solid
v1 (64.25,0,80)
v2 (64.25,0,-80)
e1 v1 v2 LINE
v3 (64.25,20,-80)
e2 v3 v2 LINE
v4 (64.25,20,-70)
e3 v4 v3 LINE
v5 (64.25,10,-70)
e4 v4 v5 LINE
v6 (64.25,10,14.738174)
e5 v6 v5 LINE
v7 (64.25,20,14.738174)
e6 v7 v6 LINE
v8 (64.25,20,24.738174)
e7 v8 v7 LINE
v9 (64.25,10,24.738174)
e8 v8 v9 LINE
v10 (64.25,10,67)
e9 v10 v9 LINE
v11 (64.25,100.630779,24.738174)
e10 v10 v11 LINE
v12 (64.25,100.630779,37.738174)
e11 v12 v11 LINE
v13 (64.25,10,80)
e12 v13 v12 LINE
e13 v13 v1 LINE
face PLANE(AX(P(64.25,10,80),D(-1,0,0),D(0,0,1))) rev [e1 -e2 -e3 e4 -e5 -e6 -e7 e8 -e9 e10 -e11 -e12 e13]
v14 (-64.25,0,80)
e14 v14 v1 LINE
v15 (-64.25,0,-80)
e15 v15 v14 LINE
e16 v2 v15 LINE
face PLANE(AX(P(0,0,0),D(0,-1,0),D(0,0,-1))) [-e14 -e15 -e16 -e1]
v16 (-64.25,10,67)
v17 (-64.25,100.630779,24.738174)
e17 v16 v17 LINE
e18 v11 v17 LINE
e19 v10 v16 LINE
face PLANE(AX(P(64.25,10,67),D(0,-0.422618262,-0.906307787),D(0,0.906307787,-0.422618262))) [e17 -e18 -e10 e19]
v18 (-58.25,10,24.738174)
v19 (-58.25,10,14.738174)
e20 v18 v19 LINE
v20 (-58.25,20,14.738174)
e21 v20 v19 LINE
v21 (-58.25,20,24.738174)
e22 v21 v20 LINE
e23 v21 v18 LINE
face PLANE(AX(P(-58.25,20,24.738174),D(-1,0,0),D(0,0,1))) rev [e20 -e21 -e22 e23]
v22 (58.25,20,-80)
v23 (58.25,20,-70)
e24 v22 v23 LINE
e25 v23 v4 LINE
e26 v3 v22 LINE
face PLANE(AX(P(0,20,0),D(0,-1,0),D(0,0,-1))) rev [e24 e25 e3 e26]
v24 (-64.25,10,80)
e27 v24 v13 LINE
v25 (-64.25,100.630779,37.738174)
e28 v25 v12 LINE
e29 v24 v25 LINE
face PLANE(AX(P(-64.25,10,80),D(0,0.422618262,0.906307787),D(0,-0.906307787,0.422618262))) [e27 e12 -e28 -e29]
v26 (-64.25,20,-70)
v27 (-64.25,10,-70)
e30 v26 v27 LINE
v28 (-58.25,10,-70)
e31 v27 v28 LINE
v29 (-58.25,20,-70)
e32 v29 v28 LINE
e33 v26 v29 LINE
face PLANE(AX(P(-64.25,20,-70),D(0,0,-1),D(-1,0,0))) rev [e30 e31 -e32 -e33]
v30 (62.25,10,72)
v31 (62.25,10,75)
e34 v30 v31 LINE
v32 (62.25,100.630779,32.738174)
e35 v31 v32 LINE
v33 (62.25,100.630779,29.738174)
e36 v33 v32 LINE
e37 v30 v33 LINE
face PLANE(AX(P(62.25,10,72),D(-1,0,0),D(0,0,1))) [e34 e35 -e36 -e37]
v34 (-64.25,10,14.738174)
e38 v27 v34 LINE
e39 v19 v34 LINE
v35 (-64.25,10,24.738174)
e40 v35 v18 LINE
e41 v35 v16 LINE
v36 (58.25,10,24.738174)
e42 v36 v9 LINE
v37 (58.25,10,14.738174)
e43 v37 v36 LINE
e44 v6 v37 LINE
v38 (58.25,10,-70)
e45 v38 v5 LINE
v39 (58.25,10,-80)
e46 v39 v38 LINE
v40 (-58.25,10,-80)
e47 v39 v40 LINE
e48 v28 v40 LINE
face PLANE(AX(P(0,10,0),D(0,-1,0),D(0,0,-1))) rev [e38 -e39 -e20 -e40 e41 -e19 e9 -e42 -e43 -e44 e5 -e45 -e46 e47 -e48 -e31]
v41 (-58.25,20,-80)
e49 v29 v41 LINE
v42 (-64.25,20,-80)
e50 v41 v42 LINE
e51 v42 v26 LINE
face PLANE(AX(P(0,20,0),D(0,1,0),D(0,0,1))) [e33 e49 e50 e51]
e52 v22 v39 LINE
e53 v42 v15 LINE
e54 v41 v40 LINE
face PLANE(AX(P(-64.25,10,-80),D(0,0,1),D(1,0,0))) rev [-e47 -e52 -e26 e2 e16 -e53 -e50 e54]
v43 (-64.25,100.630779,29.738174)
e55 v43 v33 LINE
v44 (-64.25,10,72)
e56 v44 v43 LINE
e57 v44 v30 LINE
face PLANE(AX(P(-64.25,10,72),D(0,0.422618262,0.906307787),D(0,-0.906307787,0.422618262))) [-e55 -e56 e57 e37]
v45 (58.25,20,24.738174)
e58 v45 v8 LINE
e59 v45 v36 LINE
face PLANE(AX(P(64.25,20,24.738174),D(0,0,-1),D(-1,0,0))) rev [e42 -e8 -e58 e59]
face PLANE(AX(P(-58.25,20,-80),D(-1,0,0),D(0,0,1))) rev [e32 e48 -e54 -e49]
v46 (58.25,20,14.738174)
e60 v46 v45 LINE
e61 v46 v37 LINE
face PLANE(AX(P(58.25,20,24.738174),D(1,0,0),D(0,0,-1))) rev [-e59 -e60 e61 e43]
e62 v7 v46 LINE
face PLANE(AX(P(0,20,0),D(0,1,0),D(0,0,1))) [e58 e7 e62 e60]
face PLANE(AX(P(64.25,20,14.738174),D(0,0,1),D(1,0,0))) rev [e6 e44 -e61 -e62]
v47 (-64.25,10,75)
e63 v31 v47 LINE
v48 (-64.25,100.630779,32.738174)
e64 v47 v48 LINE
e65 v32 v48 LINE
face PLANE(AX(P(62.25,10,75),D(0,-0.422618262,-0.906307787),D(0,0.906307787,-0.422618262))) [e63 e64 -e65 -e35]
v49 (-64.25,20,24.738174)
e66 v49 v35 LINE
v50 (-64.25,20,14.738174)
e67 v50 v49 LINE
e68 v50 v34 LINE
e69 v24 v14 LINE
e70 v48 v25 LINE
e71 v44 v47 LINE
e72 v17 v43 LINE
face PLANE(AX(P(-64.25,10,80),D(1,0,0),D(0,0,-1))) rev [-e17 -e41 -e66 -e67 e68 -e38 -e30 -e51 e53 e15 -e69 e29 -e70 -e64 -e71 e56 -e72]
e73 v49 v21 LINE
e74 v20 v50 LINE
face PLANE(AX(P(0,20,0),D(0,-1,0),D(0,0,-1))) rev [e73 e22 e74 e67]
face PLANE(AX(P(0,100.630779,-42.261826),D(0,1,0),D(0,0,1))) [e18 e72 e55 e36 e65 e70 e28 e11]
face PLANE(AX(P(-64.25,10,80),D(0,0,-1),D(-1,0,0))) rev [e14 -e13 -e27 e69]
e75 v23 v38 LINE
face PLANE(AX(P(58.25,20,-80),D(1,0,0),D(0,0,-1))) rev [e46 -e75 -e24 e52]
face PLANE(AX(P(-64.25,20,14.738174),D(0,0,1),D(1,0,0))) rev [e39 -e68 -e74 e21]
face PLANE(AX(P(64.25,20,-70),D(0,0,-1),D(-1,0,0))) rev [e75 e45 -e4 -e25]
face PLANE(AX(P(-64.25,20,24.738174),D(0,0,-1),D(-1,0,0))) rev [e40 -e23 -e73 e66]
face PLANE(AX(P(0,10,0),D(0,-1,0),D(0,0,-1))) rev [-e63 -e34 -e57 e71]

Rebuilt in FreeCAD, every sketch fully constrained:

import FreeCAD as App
import Part
import Sketcher
from FreeCAD import Vector

doc = App.newDocument("Part")
params = doc.addObject("Spreadsheet::Sheet", "Params")
for row, (alias, value) in enumerate([
    ("sketch1_height", "160 mm"),
    ("sketch1_width", "128.5 mm"),
    ("pad1_length", "10 mm"),
    ("sketch2_height", "13 mm"),
    ("sketch2_height2", "5 mm"),
    ("sketch2_width", "128.5 mm"),
    ("sketch2_width2", "126.5 mm"),
    ("sketch3_width", "100 mm"),
    ("sketch4_width", "6 mm"),
    ("sketch4_height", "10 mm"),
    ("pad2_length", "10 mm"),
], start=1):
    params.set(f"A{row}", alias)
    params.set(f"B{row}", "=" + value)
    params.setAlias(f"B{row}", alias)

body = doc.addObject("PartDesign::Body", "Body")

# Sketch on XZ plane
sketch1 = body.newObject("Sketcher::SketchObject", "Sketch")
sketch1.AttachmentSupport = (doc.getObject("XZ_Plane"), [""])
sketch1.MapMode = "FlatFace"
sketch1.addGeometry(Part.LineSegment(Vector(-64, -80, 0), Vector(-64, 80, 0)), False)
sketch1.addGeometry(Part.LineSegment(Vector(-64, 80, 0), Vector(64, 80, 0)), False)
sketch1.addGeometry(Part.LineSegment(Vector(64, 80, 0), Vector(64, -80, 0)), False)
sketch1.addGeometry(Part.LineSegment(Vector(64, -80, 0), Vector(-64, -80, 0)), False)
sketch1.addConstraint(Sketcher.Constraint("Coincident", 0, 2, 1, 1))
sketch1.addConstraint(Sketcher.Constraint("Coincident", 1, 2, 2, 1))
sketch1.addConstraint(Sketcher.Constraint("Coincident", 2, 2, 3, 1))
sketch1.addConstraint(Sketcher.Constraint("Coincident", 3, 2, 0, 1))
sketch1.addConstraint(Sketcher.Constraint("Vertical", 0))
sketch1.addConstraint(Sketcher.Constraint("Horizontal", 1))
sketch1.addConstraint(Sketcher.Constraint("Vertical", 2))
sketch1.addConstraint(Sketcher.Constraint("Horizontal", 3))
sketch1.addConstraint(Sketcher.Constraint("Symmetric", 0, 2, 2, 2, -1, 1))
sketch1.addConstraint(Sketcher.Constraint("DistanceY", 0, 1, 0, 2, 160.0))
sketch1.addConstraint(Sketcher.Constraint("DistanceX", 1, 1, 1, 2, 128.5))
sketch1.setExpression("Constraints[9]", "Params.sketch1_height")
sketch1.setExpression("Constraints[10]", "Params.sketch1_width")
pad1 = body.newObject("PartDesign::Pad", "Pad")
pad1.Profile = sketch1
pad1.setExpression("Length", "Params.pad1_length")
pad1.Reversed = True

# Sketch on XZ plane
sketch2 = body.newObject("Sketcher::SketchObject", "Sketch001")
sketch2.AttachmentSupport = (doc.getObject("XZ_Plane"), [""])
sketch2.MapMode = "FlatFace"
sketch2.AttachmentOffset = App.Placement(Vector(0, 0, -10), App.Rotation())
sketch2.addGeometry(Part.LineSegment(Vector(-64.2, 80, 0), Vector(64.2, 80, 0)), False)
sketch2.addGeometry(Part.LineSegment(Vector(64.2, 80, 0), Vector(64.2, 67, 0)), False)
sketch2.addGeometry(Part.LineSegment(Vector(64.2, 67, 0), Vector(-64.2, 67, 0)), False)
sketch2.addGeometry(Part.LineSegment(Vector(-64.2, 67, 0), Vector(-64.2, 72, 0)), False)
sketch2.addGeometry(Part.LineSegment(Vector(-64.2, 72, 0), Vector(62.2, 72, 0)), False)
sketch2.addGeometry(Part.LineSegment(Vector(62.2, 72, 0), Vector(62.2, 75, 0)), False)
sketch2.addGeometry(Part.LineSegment(Vector(62.2, 75, 0), Vector(-64.2, 75, 0)), False)
sketch2.addGeometry(Part.LineSegment(Vector(-64.2, 75, 0), Vector(-64.2, 80, 0)), False)
sketch2.addConstraint(Sketcher.Constraint("Coincident", 0, 2, 1, 1))
sketch2.addConstraint(Sketcher.Constraint("Coincident", 1, 2, 2, 1))
sketch2.addConstraint(Sketcher.Constraint("Coincident", 2, 2, 3, 1))
sketch2.addConstraint(Sketcher.Constraint("Coincident", 3, 2, 4, 1))
sketch2.addConstraint(Sketcher.Constraint("Coincident", 4, 2, 5, 1))
sketch2.addConstraint(Sketcher.Constraint("Coincident", 5, 2, 6, 1))
sketch2.addConstraint(Sketcher.Constraint("Coincident", 6, 2, 7, 1))
sketch2.addConstraint(Sketcher.Constraint("Coincident", 7, 2, 0, 1))
sketch2.addConstraint(Sketcher.Constraint("Horizontal", 0))
sketch2.addConstraint(Sketcher.Constraint("Vertical", 1))
sketch2.addConstraint(Sketcher.Constraint("Horizontal", 2))
sketch2.addConstraint(Sketcher.Constraint("Vertical", 3))
sketch2.addConstraint(Sketcher.Constraint("Horizontal", 4))
sketch2.addConstraint(Sketcher.Constraint("Vertical", 5))
sketch2.addConstraint(Sketcher.Constraint("Horizontal", 6))
sketch2.addConstraint(Sketcher.Constraint("Vertical", 7))
sketch2.addConstraint(Sketcher.Constraint("Vertical", 3, 2, 6, 2))
sketch2.addConstraint(Sketcher.Constraint("Equal", 3, 7))
sketch2.addConstraint(Sketcher.Constraint("DistanceY", 1, 2, 1, 1, 13.0))
sketch2.addConstraint(Sketcher.Constraint("DistanceY", 3, 1, 3, 2, 5.0))
sketch2.addConstraint(Sketcher.Constraint("DistanceX", 0, 1, 0, 2, 128.5))
sketch2.addConstraint(Sketcher.Constraint("DistanceX", 4, 1, 4, 2, 126.5))
sketch2.addConstraint(Sketcher.Constraint("DistanceY", -1, 1, 0, 2, 80.0))
sketch2.addConstraint(Sketcher.Constraint("DistanceX", -1, 1, 0, 2, 64.25))
sketch2.setExpression("Constraints[18]", "Params.sketch2_height")
sketch2.setExpression("Constraints[19]", "Params.sketch2_height2")
sketch2.setExpression("Constraints[20]", "Params.sketch2_width")
sketch2.setExpression("Constraints[21]", "Params.sketch2_width2")

# Sketch on an angled plane
sketch3 = body.newObject("Sketcher::SketchObject", "Sketch002")
sketch3.Placement = App.Placement(Vector(0, 32.42784, 69.541727), App.Rotation(Vector(0, -0.906307787, 0.422618262), Vector(1, 0, 0), Vector(0, 0.422618262, 0.906307787), "ZXY"))
sketch3.addGeometry(Part.LineSegment(Vector(25, 64, 0), Vector(-75, 64, 0)), False)
sketch3.addConstraint(Sketcher.Constraint("Horizontal", 0))
sketch3.addConstraint(Sketcher.Constraint("DistanceX", 0, 2, 0, 1, 100.0))
sketch3.addConstraint(Sketcher.Constraint("DistanceY", -1, 1, 0, 1, 64.25))
sketch3.addConstraint(Sketcher.Constraint("DistanceX", -1, 1, 0, 1, 24.746383))
sketch3.setExpression("Constraints[1]", "Params.sketch3_width")
doc.recompute()

additivepipe = body.newObject("PartDesign::AdditivePipe", "AdditivePipe")
additivepipe.Profile = sketch2
additivepipe.Spine = (sketch3, ["Edge1"])

# Sketch on XZ plane
sketch4 = body.newObject("Sketcher::SketchObject", "Sketch003")
sketch4.AttachmentSupport = (doc.getObject("XZ_Plane"), [""])
sketch4.MapMode = "FlatFace"
sketch4.AttachmentOffset = App.Placement(Vector(0, 0, -10), App.Rotation())
sketch4.addGeometry(Part.LineSegment(Vector(-64, -80, 0), Vector(-64, -70, 0)), False)
sketch4.addGeometry(Part.LineSegment(Vector(-64, -70, 0), Vector(-58, -70, 0)), False)
sketch4.addGeometry(Part.LineSegment(Vector(-58, -70, 0), Vector(-58, -80, 0)), False)
sketch4.addGeometry(Part.LineSegment(Vector(-58, -80, 0), Vector(-64, -80, 0)), False)
sketch4.addGeometry(Part.LineSegment(Vector(-64, 15, 0), Vector(-64, 25, 0)), False)
sketch4.addGeometry(Part.LineSegment(Vector(-64, 25, 0), Vector(-58, 25, 0)), False)
sketch4.addGeometry(Part.LineSegment(Vector(-58, 25, 0), Vector(-58, 15, 0)), False)
sketch4.addGeometry(Part.LineSegment(Vector(-58, 15, 0), Vector(-64, 15, 0)), False)
sketch4.addGeometry(Part.LineSegment(Vector(58, -80, 0), Vector(58, -70, 0)), False)
sketch4.addGeometry(Part.LineSegment(Vector(58, -70, 0), Vector(64, -70, 0)), False)
sketch4.addGeometry(Part.LineSegment(Vector(64, -70, 0), Vector(64, -80, 0)), False)
sketch4.addGeometry(Part.LineSegment(Vector(64, -80, 0), Vector(58, -80, 0)), False)
sketch4.addGeometry(Part.LineSegment(Vector(58, 15, 0), Vector(58, 25, 0)), False)
sketch4.addGeometry(Part.LineSegment(Vector(58, 25, 0), Vector(64, 25, 0)), False)
sketch4.addGeometry(Part.LineSegment(Vector(64, 25, 0), Vector(64, 15, 0)), False)
sketch4.addGeometry(Part.LineSegment(Vector(64, 15, 0), Vector(58, 15, 0)), False)
sketch4.addConstraint(Sketcher.Constraint("Coincident", 0, 2, 1, 1))
sketch4.addConstraint(Sketcher.Constraint("Coincident", 1, 2, 2, 1))
sketch4.addConstraint(Sketcher.Constraint("Coincident", 2, 2, 3, 1))
sketch4.addConstraint(Sketcher.Constraint("Coincident", 3, 2, 0, 1))
sketch4.addConstraint(Sketcher.Constraint("Coincident", 4, 2, 5, 1))
sketch4.addConstraint(Sketcher.Constraint("Coincident", 5, 2, 6, 1))
sketch4.addConstraint(Sketcher.Constraint("Coincident", 6, 2, 7, 1))
sketch4.addConstraint(Sketcher.Constraint("Coincident", 7, 2, 4, 1))
sketch4.addConstraint(Sketcher.Constraint("Coincident", 8, 2, 9, 1))
sketch4.addConstraint(Sketcher.Constraint("Coincident", 9, 2, 10, 1))
sketch4.addConstraint(Sketcher.Constraint("Coincident", 10, 2, 11, 1))
sketch4.addConstraint(Sketcher.Constraint("Coincident", 11, 2, 8, 1))
sketch4.addConstraint(Sketcher.Constraint("Coincident", 12, 2, 13, 1))
sketch4.addConstraint(Sketcher.Constraint("Coincident", 13, 2, 14, 1))
sketch4.addConstraint(Sketcher.Constraint("Coincident", 14, 2, 15, 1))
sketch4.addConstraint(Sketcher.Constraint("Coincident", 15, 2, 12, 1))
sketch4.addConstraint(Sketcher.Constraint("Vertical", 0))
sketch4.addConstraint(Sketcher.Constraint("Horizontal", 1))
sketch4.addConstraint(Sketcher.Constraint("Vertical", 2))
sketch4.addConstraint(Sketcher.Constraint("Horizontal", 3))
sketch4.addConstraint(Sketcher.Constraint("Vertical", 4))
sketch4.addConstraint(Sketcher.Constraint("Horizontal", 5))
sketch4.addConstraint(Sketcher.Constraint("Vertical", 6))
sketch4.addConstraint(Sketcher.Constraint("Horizontal", 7))
sketch4.addConstraint(Sketcher.Constraint("Vertical", 8))
sketch4.addConstraint(Sketcher.Constraint("Horizontal", 9))
sketch4.addConstraint(Sketcher.Constraint("Vertical", 10))
sketch4.addConstraint(Sketcher.Constraint("Horizontal", 11))
sketch4.addConstraint(Sketcher.Constraint("Vertical", 12))
sketch4.addConstraint(Sketcher.Constraint("Horizontal", 13))
sketch4.addConstraint(Sketcher.Constraint("Vertical", 14))
sketch4.addConstraint(Sketcher.Constraint("Horizontal", 15))
sketch4.addConstraint(Sketcher.Constraint("Symmetric", 1, 2, 8, 2, -2))
sketch4.addConstraint(Sketcher.Constraint("Symmetric", 3, 2, 10, 2, -2))
sketch4.addConstraint(Sketcher.Constraint("Symmetric", 5, 2, 12, 2, -2))
sketch4.addConstraint(Sketcher.Constraint("Symmetric", 7, 2, 14, 2, -2))
sketch4.addConstraint(Sketcher.Constraint("Vertical", 3, 2, 4, 2))
sketch4.addConstraint(Sketcher.Constraint("Vertical", 2, 2, 5, 2))
sketch4.addConstraint(Sketcher.Constraint("Equal", 2, 4))
sketch4.addConstraint(Sketcher.Constraint("DistanceX", 1, 1, 1, 2, 6.0))
sketch4.addConstraint(Sketcher.Constraint("DistanceY", 0, 1, 0, 2, 10.0))
sketch4.addConstraint(Sketcher.Constraint("DistanceY", 0, 2, -1, 1, 70.0))
sketch4.addConstraint(Sketcher.Constraint("DistanceX", 1, 2, 8, 2, 116.5))
sketch4.addConstraint(Sketcher.Constraint("DistanceY", -1, 1, 4, 2, 24.738174))
sketch4.setExpression("Constraints[39]", "Params.sketch4_width")
sketch4.setExpression("Constraints[40]", "Params.sketch4_height")
pad2 = body.newObject("PartDesign::Pad", "Pad001")
pad2.Profile = sketch4
pad2.setExpression("Length", "Params.pad2_length")
pad2.Reversed = True

doc.recompute()
